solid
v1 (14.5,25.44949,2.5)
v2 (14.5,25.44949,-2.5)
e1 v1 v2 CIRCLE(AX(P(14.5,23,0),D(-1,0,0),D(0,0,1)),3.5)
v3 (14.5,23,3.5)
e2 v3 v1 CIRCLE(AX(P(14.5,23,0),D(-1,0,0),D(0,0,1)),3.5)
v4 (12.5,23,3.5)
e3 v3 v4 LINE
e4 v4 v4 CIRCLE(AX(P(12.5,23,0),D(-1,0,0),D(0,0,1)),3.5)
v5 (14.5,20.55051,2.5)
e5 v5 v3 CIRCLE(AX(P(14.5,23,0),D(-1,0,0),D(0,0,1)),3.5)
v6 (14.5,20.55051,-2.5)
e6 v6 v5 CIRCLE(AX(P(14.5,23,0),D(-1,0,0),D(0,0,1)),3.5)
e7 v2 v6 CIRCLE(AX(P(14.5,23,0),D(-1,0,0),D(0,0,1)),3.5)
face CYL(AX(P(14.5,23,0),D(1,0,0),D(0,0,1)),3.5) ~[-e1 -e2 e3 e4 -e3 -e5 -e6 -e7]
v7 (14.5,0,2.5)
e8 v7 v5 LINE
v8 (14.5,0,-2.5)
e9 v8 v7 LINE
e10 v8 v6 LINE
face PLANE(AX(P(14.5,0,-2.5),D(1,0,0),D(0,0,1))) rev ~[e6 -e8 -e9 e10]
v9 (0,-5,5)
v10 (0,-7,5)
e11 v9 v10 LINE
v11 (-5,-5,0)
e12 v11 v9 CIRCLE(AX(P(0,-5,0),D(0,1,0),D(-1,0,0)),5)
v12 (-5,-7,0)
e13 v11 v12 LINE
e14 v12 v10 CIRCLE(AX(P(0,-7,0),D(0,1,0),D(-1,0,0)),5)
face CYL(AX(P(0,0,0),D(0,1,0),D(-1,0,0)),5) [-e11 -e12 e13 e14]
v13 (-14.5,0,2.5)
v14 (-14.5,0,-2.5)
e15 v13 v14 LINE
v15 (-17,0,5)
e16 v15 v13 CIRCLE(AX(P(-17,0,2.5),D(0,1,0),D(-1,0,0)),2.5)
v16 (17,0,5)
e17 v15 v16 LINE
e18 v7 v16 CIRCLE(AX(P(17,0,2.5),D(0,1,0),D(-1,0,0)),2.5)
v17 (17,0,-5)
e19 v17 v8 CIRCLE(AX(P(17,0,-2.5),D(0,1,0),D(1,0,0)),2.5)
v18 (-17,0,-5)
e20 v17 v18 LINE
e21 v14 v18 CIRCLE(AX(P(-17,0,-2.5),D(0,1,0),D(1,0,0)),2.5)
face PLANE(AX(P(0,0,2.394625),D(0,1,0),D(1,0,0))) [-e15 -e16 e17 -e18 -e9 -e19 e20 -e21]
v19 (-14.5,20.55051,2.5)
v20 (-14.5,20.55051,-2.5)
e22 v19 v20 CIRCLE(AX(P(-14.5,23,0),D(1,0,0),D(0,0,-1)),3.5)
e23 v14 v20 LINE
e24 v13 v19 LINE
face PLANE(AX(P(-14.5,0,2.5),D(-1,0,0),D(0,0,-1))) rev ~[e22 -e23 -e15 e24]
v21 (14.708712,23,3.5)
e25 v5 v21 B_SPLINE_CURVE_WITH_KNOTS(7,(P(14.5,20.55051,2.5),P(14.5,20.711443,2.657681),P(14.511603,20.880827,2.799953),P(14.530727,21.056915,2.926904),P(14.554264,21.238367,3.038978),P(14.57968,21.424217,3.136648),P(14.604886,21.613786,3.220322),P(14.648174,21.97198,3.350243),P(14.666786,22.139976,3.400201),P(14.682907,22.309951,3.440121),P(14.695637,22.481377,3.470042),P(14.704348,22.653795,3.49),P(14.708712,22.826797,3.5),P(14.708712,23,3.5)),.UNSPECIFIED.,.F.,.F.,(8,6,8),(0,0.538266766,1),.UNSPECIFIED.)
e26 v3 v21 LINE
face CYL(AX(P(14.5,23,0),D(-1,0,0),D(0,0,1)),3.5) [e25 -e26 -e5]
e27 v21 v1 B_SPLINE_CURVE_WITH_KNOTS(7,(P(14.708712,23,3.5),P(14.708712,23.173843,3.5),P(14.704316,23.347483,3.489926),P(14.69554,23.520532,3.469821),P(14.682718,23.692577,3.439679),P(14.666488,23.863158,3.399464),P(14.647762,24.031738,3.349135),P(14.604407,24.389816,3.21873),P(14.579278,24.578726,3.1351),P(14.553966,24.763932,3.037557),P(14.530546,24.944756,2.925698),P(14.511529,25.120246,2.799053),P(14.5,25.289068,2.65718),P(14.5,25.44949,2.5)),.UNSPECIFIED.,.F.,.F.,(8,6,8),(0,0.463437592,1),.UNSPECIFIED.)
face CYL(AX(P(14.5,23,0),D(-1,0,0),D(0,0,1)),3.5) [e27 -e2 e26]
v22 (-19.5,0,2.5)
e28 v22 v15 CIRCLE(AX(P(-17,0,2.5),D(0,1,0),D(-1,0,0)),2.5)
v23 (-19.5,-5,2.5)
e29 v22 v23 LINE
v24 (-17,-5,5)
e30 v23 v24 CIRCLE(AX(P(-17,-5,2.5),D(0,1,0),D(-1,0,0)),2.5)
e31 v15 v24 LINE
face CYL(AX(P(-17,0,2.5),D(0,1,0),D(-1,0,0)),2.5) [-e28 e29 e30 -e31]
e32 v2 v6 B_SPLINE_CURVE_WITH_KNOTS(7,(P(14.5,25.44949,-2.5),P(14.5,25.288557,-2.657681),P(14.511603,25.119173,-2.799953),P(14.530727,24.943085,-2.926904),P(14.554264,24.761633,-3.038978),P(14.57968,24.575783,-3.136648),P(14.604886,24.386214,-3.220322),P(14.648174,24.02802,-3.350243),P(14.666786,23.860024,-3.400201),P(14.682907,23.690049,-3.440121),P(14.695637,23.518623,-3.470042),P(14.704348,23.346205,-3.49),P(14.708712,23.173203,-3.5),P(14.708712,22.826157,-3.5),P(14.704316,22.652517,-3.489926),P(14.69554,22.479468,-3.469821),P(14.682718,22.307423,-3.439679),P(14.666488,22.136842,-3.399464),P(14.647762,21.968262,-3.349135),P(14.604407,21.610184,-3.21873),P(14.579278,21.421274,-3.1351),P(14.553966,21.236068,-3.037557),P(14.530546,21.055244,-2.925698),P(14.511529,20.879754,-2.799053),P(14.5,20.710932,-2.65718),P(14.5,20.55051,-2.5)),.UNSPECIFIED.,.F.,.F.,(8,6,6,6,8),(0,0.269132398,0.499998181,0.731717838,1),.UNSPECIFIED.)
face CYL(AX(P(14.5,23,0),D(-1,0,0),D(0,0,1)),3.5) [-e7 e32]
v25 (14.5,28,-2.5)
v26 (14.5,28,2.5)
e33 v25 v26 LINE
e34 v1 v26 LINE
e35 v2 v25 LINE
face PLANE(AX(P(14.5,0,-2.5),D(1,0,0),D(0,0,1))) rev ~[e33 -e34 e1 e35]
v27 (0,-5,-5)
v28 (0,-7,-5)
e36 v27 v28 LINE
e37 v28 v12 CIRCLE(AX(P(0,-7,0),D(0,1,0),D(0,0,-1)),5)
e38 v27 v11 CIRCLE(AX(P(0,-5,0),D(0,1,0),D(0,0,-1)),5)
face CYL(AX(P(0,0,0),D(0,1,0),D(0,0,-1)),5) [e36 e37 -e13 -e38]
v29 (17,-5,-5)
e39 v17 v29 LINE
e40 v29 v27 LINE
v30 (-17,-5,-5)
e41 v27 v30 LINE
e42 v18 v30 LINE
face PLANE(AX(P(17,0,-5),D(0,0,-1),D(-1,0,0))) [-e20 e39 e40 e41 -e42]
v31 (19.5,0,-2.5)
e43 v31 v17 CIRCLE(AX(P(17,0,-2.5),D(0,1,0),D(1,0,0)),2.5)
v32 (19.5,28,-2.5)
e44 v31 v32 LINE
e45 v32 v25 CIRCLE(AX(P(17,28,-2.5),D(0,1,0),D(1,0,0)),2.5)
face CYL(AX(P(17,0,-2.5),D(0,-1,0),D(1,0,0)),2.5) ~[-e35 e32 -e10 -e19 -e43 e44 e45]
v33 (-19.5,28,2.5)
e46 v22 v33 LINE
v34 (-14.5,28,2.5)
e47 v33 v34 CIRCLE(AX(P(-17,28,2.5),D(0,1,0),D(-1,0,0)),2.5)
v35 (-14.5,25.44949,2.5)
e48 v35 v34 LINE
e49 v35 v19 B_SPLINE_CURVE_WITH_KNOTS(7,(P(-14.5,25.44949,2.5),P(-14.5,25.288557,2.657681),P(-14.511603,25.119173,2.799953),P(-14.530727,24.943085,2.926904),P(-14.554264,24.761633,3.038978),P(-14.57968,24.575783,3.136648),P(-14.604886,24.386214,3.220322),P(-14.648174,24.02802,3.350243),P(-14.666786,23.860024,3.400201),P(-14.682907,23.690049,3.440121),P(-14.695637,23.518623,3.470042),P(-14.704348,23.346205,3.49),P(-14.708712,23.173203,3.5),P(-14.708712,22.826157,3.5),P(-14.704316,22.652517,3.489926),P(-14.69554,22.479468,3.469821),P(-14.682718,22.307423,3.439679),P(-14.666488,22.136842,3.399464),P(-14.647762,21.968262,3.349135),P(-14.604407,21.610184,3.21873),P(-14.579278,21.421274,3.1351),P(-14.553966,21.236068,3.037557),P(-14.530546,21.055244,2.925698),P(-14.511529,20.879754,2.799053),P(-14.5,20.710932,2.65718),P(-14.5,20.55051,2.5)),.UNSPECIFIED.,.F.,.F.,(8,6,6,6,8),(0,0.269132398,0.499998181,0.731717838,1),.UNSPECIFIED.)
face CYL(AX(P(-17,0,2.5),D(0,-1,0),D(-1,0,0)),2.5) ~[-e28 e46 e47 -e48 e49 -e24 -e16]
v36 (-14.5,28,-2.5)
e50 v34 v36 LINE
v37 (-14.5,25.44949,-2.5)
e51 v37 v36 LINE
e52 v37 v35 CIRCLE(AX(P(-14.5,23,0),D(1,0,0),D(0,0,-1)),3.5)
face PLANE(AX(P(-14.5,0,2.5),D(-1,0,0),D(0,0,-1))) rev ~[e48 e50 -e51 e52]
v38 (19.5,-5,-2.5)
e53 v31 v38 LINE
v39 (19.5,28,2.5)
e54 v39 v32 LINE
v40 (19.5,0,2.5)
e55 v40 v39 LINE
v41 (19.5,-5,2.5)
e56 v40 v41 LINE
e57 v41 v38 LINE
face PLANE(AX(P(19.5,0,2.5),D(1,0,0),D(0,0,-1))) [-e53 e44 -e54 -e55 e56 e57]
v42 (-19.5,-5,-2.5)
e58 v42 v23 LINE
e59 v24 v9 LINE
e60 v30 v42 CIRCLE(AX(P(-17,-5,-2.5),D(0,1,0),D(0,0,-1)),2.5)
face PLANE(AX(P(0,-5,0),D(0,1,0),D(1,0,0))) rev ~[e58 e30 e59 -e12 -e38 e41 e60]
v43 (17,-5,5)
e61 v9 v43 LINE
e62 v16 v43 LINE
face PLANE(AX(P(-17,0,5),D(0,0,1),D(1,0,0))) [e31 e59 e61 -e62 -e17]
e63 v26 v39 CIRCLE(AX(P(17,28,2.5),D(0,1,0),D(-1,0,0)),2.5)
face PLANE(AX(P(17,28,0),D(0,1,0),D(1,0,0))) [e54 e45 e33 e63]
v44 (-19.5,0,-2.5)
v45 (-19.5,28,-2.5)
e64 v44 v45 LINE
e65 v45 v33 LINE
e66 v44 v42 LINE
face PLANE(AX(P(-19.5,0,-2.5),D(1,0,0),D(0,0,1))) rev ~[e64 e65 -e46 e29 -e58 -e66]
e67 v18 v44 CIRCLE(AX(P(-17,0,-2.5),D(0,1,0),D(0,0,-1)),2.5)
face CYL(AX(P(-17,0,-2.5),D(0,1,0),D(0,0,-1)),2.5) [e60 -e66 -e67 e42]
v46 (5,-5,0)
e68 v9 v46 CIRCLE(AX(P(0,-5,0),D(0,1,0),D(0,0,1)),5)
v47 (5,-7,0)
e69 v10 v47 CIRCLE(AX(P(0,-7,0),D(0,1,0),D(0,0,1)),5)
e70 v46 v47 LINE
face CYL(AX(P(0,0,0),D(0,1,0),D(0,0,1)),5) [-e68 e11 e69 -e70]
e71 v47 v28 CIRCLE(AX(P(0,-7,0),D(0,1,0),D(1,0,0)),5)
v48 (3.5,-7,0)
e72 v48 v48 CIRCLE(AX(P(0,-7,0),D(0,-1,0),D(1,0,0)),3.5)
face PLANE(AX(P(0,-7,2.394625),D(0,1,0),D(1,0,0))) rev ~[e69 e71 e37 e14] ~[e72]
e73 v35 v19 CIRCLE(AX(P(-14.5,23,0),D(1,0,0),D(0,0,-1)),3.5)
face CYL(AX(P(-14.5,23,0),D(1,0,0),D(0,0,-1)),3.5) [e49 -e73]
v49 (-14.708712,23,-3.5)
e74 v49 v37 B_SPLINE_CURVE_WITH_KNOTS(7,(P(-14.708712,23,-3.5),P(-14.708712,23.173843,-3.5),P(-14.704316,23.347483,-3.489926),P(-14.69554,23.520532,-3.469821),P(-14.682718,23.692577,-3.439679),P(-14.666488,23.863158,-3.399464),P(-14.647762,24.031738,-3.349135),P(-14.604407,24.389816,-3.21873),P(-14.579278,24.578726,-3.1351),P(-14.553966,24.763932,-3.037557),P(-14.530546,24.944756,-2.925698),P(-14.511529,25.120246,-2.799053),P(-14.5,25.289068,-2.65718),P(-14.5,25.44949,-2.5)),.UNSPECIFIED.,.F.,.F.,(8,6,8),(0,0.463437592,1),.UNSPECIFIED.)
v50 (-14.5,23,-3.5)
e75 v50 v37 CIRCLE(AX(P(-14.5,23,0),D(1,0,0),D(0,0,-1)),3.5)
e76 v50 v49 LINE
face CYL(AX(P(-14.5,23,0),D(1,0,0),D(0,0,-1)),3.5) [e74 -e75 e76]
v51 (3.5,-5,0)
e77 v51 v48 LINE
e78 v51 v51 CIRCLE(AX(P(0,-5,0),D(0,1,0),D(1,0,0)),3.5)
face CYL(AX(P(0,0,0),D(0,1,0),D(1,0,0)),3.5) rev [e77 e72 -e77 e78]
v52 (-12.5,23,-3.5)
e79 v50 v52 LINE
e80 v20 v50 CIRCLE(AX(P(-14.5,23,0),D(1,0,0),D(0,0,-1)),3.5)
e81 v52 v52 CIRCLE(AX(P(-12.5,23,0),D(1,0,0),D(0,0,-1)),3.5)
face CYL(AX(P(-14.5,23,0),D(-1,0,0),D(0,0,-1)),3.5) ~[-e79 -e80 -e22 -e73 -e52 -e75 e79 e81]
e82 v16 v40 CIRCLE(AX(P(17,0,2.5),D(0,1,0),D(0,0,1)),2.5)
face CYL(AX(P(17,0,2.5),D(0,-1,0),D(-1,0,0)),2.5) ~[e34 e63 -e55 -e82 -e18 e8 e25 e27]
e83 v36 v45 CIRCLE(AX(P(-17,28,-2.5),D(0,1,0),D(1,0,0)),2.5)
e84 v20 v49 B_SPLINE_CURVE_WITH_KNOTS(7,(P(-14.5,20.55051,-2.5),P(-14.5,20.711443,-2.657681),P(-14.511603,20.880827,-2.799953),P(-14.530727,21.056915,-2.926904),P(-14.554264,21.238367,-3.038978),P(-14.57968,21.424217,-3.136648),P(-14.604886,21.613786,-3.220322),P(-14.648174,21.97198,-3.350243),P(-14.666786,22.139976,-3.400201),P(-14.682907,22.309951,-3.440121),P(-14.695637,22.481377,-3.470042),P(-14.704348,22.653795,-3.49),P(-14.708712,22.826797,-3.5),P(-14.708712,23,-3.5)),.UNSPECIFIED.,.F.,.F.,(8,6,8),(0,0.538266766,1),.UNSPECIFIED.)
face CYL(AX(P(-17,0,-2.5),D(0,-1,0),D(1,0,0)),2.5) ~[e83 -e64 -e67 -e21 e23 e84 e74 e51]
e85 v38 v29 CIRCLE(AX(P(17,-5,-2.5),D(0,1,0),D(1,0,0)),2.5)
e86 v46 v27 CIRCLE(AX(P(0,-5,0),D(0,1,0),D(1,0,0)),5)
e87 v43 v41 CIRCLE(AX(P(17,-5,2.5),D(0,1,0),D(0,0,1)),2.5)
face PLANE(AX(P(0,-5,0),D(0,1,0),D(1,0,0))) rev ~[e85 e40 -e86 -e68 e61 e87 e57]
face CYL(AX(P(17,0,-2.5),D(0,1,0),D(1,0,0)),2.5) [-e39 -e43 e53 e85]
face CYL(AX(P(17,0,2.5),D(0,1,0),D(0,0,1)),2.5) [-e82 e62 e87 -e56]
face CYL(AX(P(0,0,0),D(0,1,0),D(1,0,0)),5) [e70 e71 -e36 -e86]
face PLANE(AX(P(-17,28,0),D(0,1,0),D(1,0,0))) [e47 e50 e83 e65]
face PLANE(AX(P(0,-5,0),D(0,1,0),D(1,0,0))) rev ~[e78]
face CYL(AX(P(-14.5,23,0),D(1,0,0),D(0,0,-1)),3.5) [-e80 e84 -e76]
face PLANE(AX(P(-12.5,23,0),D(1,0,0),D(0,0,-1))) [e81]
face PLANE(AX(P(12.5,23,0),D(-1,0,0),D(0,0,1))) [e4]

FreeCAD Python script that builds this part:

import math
import FreeCAD as App
import Part
import Sketcher

V = App.Vector
Q = App.Units.Quantity

doc = App.newDocument("Part")
body = doc.addObject("PartDesign::Body", "Body")

# Sketch on XZ plane
sketch1 = body.newObject("Sketcher::SketchObject", "Sketch")
sketch1.AttachmentSupport = (doc.getObject("XZ_Plane"), [""])
sketch1.MapMode = "FlatFace"
sketch1.addGeometry(Part.LineSegment(V(-17, 5, 0), V(17, 5, 0)), False)
sketch1.addGeometry(Part.ArcOfCircle(Part.Circle(V(17, 2.5, 0), V(0, 0, 1), 2.5), math.radians(0), math.radians(90)), False)
sketch1.addGeometry(Part.LineSegment(V(19.5, 2.5, 0), V(19.5, -2.5, 0)), False)
sketch1.addGeometry(Part.ArcOfCircle(Part.Circle(V(17, -2.5, 0), V(0, 0, 1), 2.5), math.radians(-90), math.radians(0)), False)
sketch1.addGeometry(Part.LineSegment(V(17, -5, 0), V(-17, -5, 0)), False)
sketch1.addGeometry(Part.ArcOfCircle(Part.Circle(V(-17, -2.5, 0), V(0, 0, 1), 2.5), math.radians(180), math.radians(270)), False)
sketch1.addGeometry(Part.LineSegment(V(-19.5, -2.5, 0), V(-19.5, 2.5, 0)), False)
sketch1.addGeometry(Part.ArcOfCircle(Part.Circle(V(-17, 2.5, 0), V(0, 0, 1), 2.5), math.radians(90), math.radians(180)), False)
sketch1.addConstraint(Sketcher.Constraint("Tangent", 0, 2, 1, 2))
sketch1.addConstraint(Sketcher.Constraint("Tangent", 1, 1, 2, 1))
sketch1.addConstraint(Sketcher.Constraint("Tangent", 2, 2, 3, 2))
sketch1.addConstraint(Sketcher.Constraint("Tangent", 3, 1, 4, 1))
sketch1.addConstraint(Sketcher.Constraint("Tangent", 4, 2, 5, 2))
sketch1.addConstraint(Sketcher.Constraint("Tangent", 5, 1, 6, 1))
sketch1.addConstraint(Sketcher.Constraint("Tangent", 6, 2, 7, 2))
sketch1.addConstraint(Sketcher.Constraint("Tangent", 7, 1, 0, 1))
sketch1.addConstraint(Sketcher.Constraint("Horizontal", 0))
sketch1.addConstraint(Sketcher.Constraint("Vertical", 2))
sketch1.addConstraint(Sketcher.Constraint("Horizontal", 4))
sketch1.addConstraint(Sketcher.Constraint("Vertical", 6))
sketch1.addConstraint(Sketcher.Constraint("Equal", 1, 3))
sketch1.addConstraint(Sketcher.Constraint("Equal", 3, 5))
sketch1.addConstraint(Sketcher.Constraint("Equal", 5, 7))
sketch1.addConstraint(Sketcher.Constraint("Symmetric", 1, 3, 5, 3, -1, 1))
sketch1.addConstraint(Sketcher.Constraint("Radius", 1, Q("2.5 mm")))
sketch1.addConstraint(Sketcher.Constraint("DistanceX", 0, 1, 0, 2, Q("34 mm")))
sketch1.addConstraint(Sketcher.Constraint("DistanceY", 2, 2, 2, 1, Q("5 mm")))
pad1 = body.newObject("PartDesign::Pad", "Pad")
pad1.Profile = sketch1
pad1.Length = 5

# Sketch on XZ plane
sketch2 = body.newObject("Sketcher::SketchObject", "Sketch001")
sketch2.AttachmentSupport = (doc.getObject("XZ_Plane"), [""])
sketch2.MapMode = "FlatFace"
sketch2.addGeometry(Part.ArcOfCircle(Part.Circle(V(-17, 2.5, 0), V(0, 0, 1), 2.5), math.radians(0), math.radians(180)), False)
sketch2.addGeometry(Part.LineSegment(V(-14.5, 2.5, 0), V(-14.5, -2.5, 0)), False)
sketch2.addGeometry(Part.ArcOfCircle(Part.Circle(V(-17, -2.5, 0), V(0, 0, 1), 2.5), math.radians(180), math.radians(360)), False)
sketch2.addGeometry(Part.LineSegment(V(-19.5, -2.5, 0), V(-19.5, 2.5, 0)), False)
sketch2.addGeometry(Part.ArcOfCircle(Part.Circle(V(17, 2.5, 0), V(0, 0, 1), 2.5), math.radians(0), math.radians(180)), False)
sketch2.addGeometry(Part.LineSegment(V(19.5, 2.5, 0), V(19.5, -2.5, 0)), False)
sketch2.addGeometry(Part.ArcOfCircle(Part.Circle(V(17, -2.5, 0), V(0, 0, 1), 2.5), math.radians(180), math.radians(360)), False)
sketch2.addGeometry(Part.LineSegment(V(14.5, -2.5, 0), V(14.5, 2.5, 0)), False)
sketch2.addConstraint(Sketcher.Constraint("Tangent", 0, 1, 1, 1))
sketch2.addConstraint(Sketcher.Constraint("Tangent", 1, 2, 2, 2))
sketch2.addConstraint(Sketcher.Constraint("Tangent", 2, 1, 3, 1))
sketch2.addConstraint(Sketcher.Constraint("Tangent", 3, 2, 0, 2))
sketch2.addConstraint(Sketcher.Constraint("Tangent", 4, 1, 5, 1))
sketch2.addConstraint(Sketcher.Constraint("Tangent", 5, 2, 6, 2))
sketch2.addConstraint(Sketcher.Constraint("Tangent", 6, 1, 7, 1))
sketch2.addConstraint(Sketcher.Constraint("Tangent", 7, 2, 4, 2))
sketch2.addConstraint(Sketcher.Constraint("Vertical", 1))
sketch2.addConstraint(Sketcher.Constraint("Vertical", 3))
sketch2.addConstraint(Sketcher.Constraint("Vertical", 5))
sketch2.addConstraint(Sketcher.Constraint("Vertical", 7))
sketch2.addConstraint(Sketcher.Constraint("Equal", 2, 4))
sketch2.addConstraint(Sketcher.Constraint("Symmetric", 2, 3, 4, 3, -1, 1))
sketch2.addConstraint(Sketcher.Constraint("Horizontal", 0, 3, 4, 3))
sketch2.addConstraint(Sketcher.Constraint("Horizontal", 2, 3, 6, 3))
sketch2.addConstraint(Sketcher.Constraint("Radius", 0, Q("2.5 mm")))
sketch2.addConstraint(Sketcher.Constraint("DistanceY", 1, 2, 1, 1, Q("5 mm")))
sketch2.addConstraint(Sketcher.Constraint("DistanceX", 0, 3, -1, 1, Q("17 mm")))
pad2 = body.newObject("PartDesign::Pad", "Pad001")
pad2.Profile = sketch2
pad2.Length = 28
pad2.Reversed = True

# Sketch on YZ plane
sketch3 = body.newObject("Sketcher::SketchObject", "Sketch002")
sketch3.AttachmentSupport = (doc.getObject("YZ_Plane"), [""])
sketch3.MapMode = "FlatFace"
sketch3.AttachmentOffset = App.Placement(V(0, 0, -14.5), App.Rotation())
sketch3.addGeometry(Part.Circle(V(23, 0, 0), V(0, 0, 1), 3.5), False)
sketch3.addConstraint(Sketcher.Constraint("PointOnObject", 0, 3, -1))
sketch3.addConstraint(Sketcher.Constraint("Diameter", 0, Q("7 mm")))
sketch3.addConstraint(Sketcher.Constraint("DistanceX", -1, 1, 0, 3, Q("23 mm")))
pad3 = body.newObject("PartDesign::Pad", "Pad002")
pad3.Profile = sketch3
pad3.Type = "TwoLengths"
pad3.Length = 2
pad3.Length2 = 1

# Sketch on XZ plane
sketch4 = body.newObject("Sketcher::SketchObject", "Sketch003")
sketch4.AttachmentSupport = (doc.getObject("XZ_Plane"), [""])
sketch4.MapMode = "FlatFace"
sketch4.addGeometry(Part.ArcOfCircle(Part.Circle(V(0, 0, 0), V(0, 0, 1), 5), math.radians(180), math.radians(270)), False)
sketch4.addGeometry(Part.ArcOfCircle(Part.Circle(V(0, 0, 0), V(0, 0, 1), 5), math.radians(90), math.radians(180)), False)
sketch4.addGeometry(Part.ArcOfCircle(Part.Circle(V(0, 0, 0), V(0, 0, 1), 5), math.radians(0), math.radians(90)), False)
sketch4.addGeometry(Part.ArcOfCircle(Part.Circle(V(0, 0, 0), V(0, 0, 1), 5), math.radians(-90), math.radians(0)), False)
sketch4.addGeometry(Part.Circle(V(0, 0, 0), V(0, 0, 1), 3.5), False)
sketch4.addConstraint(Sketcher.Constraint("Tangent", 0, 1, 1, 2))
sketch4.addConstraint(Sketcher.Constraint("Tangent", 1, 1, 2, 2))
sketch4.addConstraint(Sketcher.Constraint("Tangent", 2, 1, 3, 2))
sketch4.addConstraint(Sketcher.Constraint("Tangent", 3, 1, 0, 2))
sketch4.addConstraint(Sketcher.Constraint("Coincident", 0, 3, -1, 1))
sketch4.addConstraint(Sketcher.Constraint("Coincident", 4, 3, -1, 1))
sketch4.addConstraint(Sketcher.Constraint("Equal", 0, 1))
sketch4.addConstraint(Sketcher.Constraint("PointOnObject", 0, 1, -1))
sketch4.addConstraint(Sketcher.Constraint("PointOnObject", 1, 1, -2))
sketch4.addConstraint(Sketcher.Constraint("PointOnObject", 2, 1, -1))
sketch4.addConstraint(Sketcher.Constraint("PointOnObject", 3, 1, -2))
sketch4.addConstraint(Sketcher.Constraint("Diameter", 4, Q("7 mm")))
sketch4.addConstraint(Sketcher.Constraint("Radius", 0, Q("5 mm")))
pad4 = body.newObject("PartDesign::Pad", "Pad003")
pad4.Profile = sketch4
pad4.Length = 7

# Sketch on YZ plane
sketch5 = body.newObject("Sketcher::SketchObject", "Sketch004")
sketch5.AttachmentSupport = (doc.getObject("YZ_Plane"), [""])
sketch5.MapMode = "FlatFace"
sketch5.AttachmentOffset = App.Placement(V(0, 0, 14.5), App.Rotation())
sketch5.addGeometry(Part.Circle(V(23, 0, 0), V(0, 0, 1), 3.5), False)
sketch5.addConstraint(Sketcher.Constraint("PointOnObject", 0, 3, -1))
sketch5.addConstraint(Sketcher.Constraint("Diameter", 0, Q("7 mm")))
sketch5.addConstraint(Sketcher.Constraint("DistanceX", -1, 1, 0, 3, Q("23 mm")))
pad5 = body.newObject("PartDesign::Pad", "Pad004")
pad5.Profile = sketch5
pad5.Type = "TwoLengths"
pad5.Length = 2
pad5.Length2 = 1
pad5.Reversed = True

doc.recompute()
